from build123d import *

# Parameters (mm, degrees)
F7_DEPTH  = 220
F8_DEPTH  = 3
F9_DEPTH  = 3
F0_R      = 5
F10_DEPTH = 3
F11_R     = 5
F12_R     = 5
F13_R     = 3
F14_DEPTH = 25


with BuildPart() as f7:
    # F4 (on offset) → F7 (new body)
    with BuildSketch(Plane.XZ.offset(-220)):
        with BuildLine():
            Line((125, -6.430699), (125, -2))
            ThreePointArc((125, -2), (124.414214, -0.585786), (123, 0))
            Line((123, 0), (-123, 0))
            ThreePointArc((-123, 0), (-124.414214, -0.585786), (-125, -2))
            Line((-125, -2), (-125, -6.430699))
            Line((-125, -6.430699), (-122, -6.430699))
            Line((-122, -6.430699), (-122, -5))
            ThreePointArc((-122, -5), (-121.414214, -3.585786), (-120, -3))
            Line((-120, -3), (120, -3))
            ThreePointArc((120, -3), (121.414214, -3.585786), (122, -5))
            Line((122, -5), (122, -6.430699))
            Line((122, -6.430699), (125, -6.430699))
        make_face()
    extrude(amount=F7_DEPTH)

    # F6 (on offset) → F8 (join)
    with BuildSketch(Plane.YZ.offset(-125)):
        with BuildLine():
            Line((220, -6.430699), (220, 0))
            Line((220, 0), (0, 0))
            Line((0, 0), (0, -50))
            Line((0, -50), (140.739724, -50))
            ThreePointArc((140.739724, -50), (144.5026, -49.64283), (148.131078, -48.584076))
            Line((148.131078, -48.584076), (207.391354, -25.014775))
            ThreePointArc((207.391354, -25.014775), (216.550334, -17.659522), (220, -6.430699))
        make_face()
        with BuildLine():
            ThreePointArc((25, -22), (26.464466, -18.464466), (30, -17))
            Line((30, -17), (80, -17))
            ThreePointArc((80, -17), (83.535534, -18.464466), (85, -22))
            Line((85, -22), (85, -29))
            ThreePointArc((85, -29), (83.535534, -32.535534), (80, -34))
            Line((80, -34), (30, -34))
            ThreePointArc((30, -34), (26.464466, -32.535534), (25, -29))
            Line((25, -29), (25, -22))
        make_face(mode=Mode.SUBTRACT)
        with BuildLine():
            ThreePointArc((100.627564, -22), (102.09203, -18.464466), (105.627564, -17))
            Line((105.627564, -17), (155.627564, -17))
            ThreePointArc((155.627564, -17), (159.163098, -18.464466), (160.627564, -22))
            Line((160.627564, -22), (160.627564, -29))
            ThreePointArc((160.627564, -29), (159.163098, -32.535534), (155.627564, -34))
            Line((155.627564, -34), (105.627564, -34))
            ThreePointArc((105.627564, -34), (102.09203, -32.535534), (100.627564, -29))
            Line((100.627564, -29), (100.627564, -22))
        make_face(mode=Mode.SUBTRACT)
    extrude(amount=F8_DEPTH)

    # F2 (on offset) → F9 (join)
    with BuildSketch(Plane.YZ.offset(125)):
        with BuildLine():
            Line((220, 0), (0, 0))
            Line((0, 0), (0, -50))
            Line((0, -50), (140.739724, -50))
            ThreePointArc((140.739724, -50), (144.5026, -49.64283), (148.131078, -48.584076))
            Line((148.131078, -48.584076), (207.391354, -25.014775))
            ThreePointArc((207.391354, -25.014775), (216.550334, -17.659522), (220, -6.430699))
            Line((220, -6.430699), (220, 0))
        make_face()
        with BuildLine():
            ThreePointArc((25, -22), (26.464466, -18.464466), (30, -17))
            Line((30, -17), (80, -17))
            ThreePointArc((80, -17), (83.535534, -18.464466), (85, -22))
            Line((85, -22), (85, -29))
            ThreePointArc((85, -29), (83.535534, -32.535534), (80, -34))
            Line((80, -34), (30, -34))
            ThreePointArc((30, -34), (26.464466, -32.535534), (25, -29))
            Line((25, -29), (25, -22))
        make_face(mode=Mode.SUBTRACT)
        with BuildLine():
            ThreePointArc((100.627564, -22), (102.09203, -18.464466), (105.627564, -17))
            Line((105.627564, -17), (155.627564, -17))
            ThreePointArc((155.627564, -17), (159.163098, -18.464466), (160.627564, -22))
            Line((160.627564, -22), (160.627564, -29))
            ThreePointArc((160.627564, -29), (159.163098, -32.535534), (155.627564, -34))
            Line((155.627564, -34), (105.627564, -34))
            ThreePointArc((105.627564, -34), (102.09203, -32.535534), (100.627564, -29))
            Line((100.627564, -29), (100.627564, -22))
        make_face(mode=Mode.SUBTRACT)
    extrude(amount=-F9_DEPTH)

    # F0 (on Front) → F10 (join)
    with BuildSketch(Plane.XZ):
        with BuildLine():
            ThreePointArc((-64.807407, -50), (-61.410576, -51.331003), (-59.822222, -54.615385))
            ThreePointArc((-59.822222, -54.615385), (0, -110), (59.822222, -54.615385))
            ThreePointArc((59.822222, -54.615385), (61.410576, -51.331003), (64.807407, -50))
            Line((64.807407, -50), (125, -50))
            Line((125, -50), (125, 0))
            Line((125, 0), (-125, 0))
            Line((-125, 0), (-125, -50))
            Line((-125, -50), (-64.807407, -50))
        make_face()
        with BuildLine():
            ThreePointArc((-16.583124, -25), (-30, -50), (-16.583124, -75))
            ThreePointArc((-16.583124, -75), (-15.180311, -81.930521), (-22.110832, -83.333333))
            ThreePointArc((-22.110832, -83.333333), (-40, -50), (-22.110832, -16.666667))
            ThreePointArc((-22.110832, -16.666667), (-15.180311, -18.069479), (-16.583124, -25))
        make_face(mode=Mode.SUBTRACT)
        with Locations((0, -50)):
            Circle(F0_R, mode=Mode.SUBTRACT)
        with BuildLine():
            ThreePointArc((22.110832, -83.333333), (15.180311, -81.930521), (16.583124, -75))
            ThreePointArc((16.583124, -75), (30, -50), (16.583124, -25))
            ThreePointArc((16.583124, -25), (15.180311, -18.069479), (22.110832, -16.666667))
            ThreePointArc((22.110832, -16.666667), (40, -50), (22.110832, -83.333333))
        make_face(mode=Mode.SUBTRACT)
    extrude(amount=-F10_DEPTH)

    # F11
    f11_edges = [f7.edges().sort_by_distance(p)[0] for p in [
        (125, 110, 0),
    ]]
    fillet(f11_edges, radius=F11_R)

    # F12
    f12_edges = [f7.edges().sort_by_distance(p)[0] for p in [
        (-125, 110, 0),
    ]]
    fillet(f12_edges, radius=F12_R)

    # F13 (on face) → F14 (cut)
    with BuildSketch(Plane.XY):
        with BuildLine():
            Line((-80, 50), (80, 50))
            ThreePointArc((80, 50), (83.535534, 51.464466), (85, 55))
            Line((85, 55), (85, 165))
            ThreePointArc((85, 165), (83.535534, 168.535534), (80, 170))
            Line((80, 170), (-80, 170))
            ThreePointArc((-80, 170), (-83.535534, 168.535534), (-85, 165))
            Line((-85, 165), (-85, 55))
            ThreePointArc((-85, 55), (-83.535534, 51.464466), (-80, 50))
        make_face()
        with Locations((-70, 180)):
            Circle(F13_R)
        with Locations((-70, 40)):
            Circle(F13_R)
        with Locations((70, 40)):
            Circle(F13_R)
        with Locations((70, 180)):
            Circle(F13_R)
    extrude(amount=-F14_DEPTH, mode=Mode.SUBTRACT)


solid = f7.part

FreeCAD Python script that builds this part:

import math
import FreeCAD as App
import Part
import Sketcher
Q = App.Units.Quantity


def edges_at(feature, points):
    """Names of the edges that pass closest to the given points."""
    edges = feature.Shape.Edges
    near = lambda p: min(range(len(edges)), key=lambda i: edges[i].distToShape(Part.Vertex(*p))[0])
    return sorted({f"Edge{near(p) + 1}" for p in points})

doc = App.newDocument("Part")
body = doc.addObject("PartDesign::Body", "Body")

# Sketch on XZ plane
sketch1 = body.newObject("Sketcher::SketchObject", "Sketch")
sketch1.AttachmentSupport = (doc.getObject("XZ_Plane"), [""])
sketch1.MapMode = "FlatFace"
sketch1.AttachmentOffset = App.Placement(App.Vector(0, 0, -220), App.Rotation())
sketch1.addGeometry([
    Part.LineSegment(App.Vector(125, -6.4, 0), App.Vector(125, -2, 0)),  # 0
    Part.ArcOfCircle(Part.Circle(App.Vector(123, -2, 0), App.Vector(0, 0, 1), 2), math.radians(0), math.radians(90)),  # 1
    Part.LineSegment(App.Vector(123, 0, 0), App.Vector(-123, 0, 0)),  # 2
    Part.ArcOfCircle(Part.Circle(App.Vector(-123, -2, 0), App.Vector(0, 0, 1), 2), math.radians(90), math.radians(180)),  # 3
    Part.LineSegment(App.Vector(-125, -2, 0), App.Vector(-125, -6.4, 0)),  # 4
    Part.LineSegment(App.Vector(-125, -6.4, 0), App.Vector(-122, -6.4, 0)),  # 5
    Part.LineSegment(App.Vector(-122, -6.4, 0), App.Vector(-122, -5, 0)),  # 6
    Part.ArcOfCircle(Part.Circle(App.Vector(-120, -5, 0), App.Vector(0, 0, 1), 2), math.radians(90), math.radians(180)),  # 7
    Part.LineSegment(App.Vector(-120, -3, 0), App.Vector(120, -3, 0)),  # 8
    Part.ArcOfCircle(Part.Circle(App.Vector(120, -5, 0), App.Vector(0, 0, 1), 2), math.radians(0), math.radians(90)),  # 9
    Part.LineSegment(App.Vector(122, -5, 0), App.Vector(122, -6.4, 0)),  # 10
    Part.LineSegment(App.Vector(122, -6.4, 0), App.Vector(125, -6.4, 0)),  # 11
], False)
sketch1.addConstraint([
    Sketcher.Constraint("Tangent", 0, 2, 1, 1),
    Sketcher.Constraint("Tangent", 1, 2, 2, 1),
    Sketcher.Constraint("Tangent", 2, 2, 3, 1),
    Sketcher.Constraint("Tangent", 3, 2, 4, 1),
    Sketcher.Constraint("Coincident", 4, 2, 5, 1),
    Sketcher.Constraint("Coincident", 5, 2, 6, 1),
    Sketcher.Constraint("Tangent", 6, 2, 7, 2),
    Sketcher.Constraint("Tangent", 7, 1, 8, 1),
    Sketcher.Constraint("Tangent", 8, 2, 9, 2),
    Sketcher.Constraint("Tangent", 9, 1, 10, 1),
    Sketcher.Constraint("Coincident", 10, 2, 11, 1),
    Sketcher.Constraint("Coincident", 11, 2, 0, 1),
    Sketcher.Constraint("Vertical", 0),
    Sketcher.Constraint("Horizontal", 2),
    Sketcher.Constraint("Vertical", 4),
    Sketcher.Constraint("Horizontal", 5),
    Sketcher.Constraint("Vertical", 6),
    Sketcher.Constraint("Horizontal", 8),
    Sketcher.Constraint("Vertical", 10),
    Sketcher.Constraint("Horizontal", 11),
    Sketcher.Constraint("Equal", 1, 3),
    Sketcher.Constraint("Equal", 3, 7),
    Sketcher.Constraint("Equal", 7, 9),
    Sketcher.Constraint("Symmetric", 1, 2, 2, 2, -1, 1),
    Sketcher.Constraint("Symmetric", 5, 2, 10, 2, -2),
    Sketcher.Constraint("Radius", 1, Q("1.999999 mm")),
    Sketcher.Constraint("DistanceX", 2, 2, 2, 1, Q("246 mm")),
    Sketcher.Constraint("DistanceX", 5, 1, 5, 2, Q("3 mm")),
    Sketcher.Constraint("DistanceY", 7, 3, -1, 1, Q("4.999999 mm")),
    Sketcher.Constraint("DistanceY", 0, 1, 0, 2, Q("4.430699 mm")),
])
pad1 = body.newObject("PartDesign::Pad", "Pad")
pad1.Profile = sketch1
pad1.Length = 220

# Sketch on YZ plane
sketch2 = body.newObject("Sketcher::SketchObject", "Sketch001")
sketch2.AttachmentSupport = (doc.getObject("YZ_Plane"), [""])
sketch2.MapMode = "FlatFace"
sketch2.AttachmentOffset = App.Placement(App.Vector(0, 0, -125), App.Rotation())
sketch2.addGeometry([
    Part.LineSegment(App.Vector(220, -6.4, 0), App.Vector(220, 0, 0)),  # 0
    Part.LineSegment(App.Vector(220, 0, 0), App.Vector(0, 0, 0)),  # 1
    Part.LineSegment(App.Vector(0, 0, 0), App.Vector(0, -50, 0)),  # 2
    Part.LineSegment(App.Vector(0, -50, 0), App.Vector(140.7, -50, 0)),  # 3
    Part.ArcOfCircle(Part.Circle(App.Vector(140.7, -30, 0), App.Vector(0, 0, 1), 20), math.radians(-90), math.radians(-68)),  # 4
    Part.LineSegment(App.Vector(148.1, -48.6, 0), App.Vector(207.4, -25, 0)),  # 5
    Part.ArcOfCircle(Part.Circle(App.Vector(200, -6.4, 0), App.Vector(0, 0, 1), 20), math.radians(-68), math.radians(0)),  # 6
    Part.LineSegment(App.Vector(25, -29, 0), App.Vector(25, -22, 0)),  # 7
    Part.ArcOfCircle(Part.Circle(App.Vector(30, -22, 0), App.Vector(0, 0, 1), 5), math.radians(90), math.radians(180)),  # 8
    Part.LineSegment(App.Vector(30, -17, 0), App.Vector(80, -17, 0)),  # 9
    Part.ArcOfCircle(Part.Circle(App.Vector(80, -22, 0), App.Vector(0, 0, 1), 5), math.radians(0), math.radians(90)),  # 10
    Part.LineSegment(App.Vector(85, -22, 0), App.Vector(85, -29, 0)),  # 11
    Part.ArcOfCircle(Part.Circle(App.Vector(80, -29, 0), App.Vector(0, 0, 1), 5), math.radians(-90), math.radians(0)),  # 12
    Part.LineSegment(App.Vector(80, -34, 0), App.Vector(30, -34, 0)),  # 13
    Part.ArcOfCircle(Part.Circle(App.Vector(30, -29, 0), App.Vector(0, 0, 1), 5), math.radians(180), math.radians(270)),  # 14
    Part.LineSegment(App.Vector(100.6, -29, 0), App.Vector(100.6, -22, 0)),  # 15
    Part.ArcOfCircle(Part.Circle(App.Vector(105.6, -22, 0), App.Vector(0, 0, 1), 5), math.radians(90), math.radians(180)),  # 16
    Part.LineSegment(App.Vector(105.6, -17, 0), App.Vector(155.6, -17, 0)),  # 17
    Part.ArcOfCircle(Part.Circle(App.Vector(155.6, -22, 0), App.Vector(0, 0, 1), 5), math.radians(0), math.radians(90)),  # 18
    Part.LineSegment(App.Vector(160.6, -22, 0), App.Vector(160.6, -29, 0)),  # 19
    Part.ArcOfCircle(Part.Circle(App.Vector(155.6, -29, 0), App.Vector(0, 0, 1), 5), math.radians(-90), math.radians(0)),  # 20
    Part.LineSegment(App.Vector(155.6, -34, 0), App.Vector(105.6, -34, 0)),  # 21
    Part.ArcOfCircle(Part.Circle(App.Vector(105.6, -29, 0), App.Vector(0, 0, 1), 5), math.radians(180), math.radians(270)),  # 22
], False)
sketch2.addConstraint([
    Sketcher.Constraint("Coincident", 0, 2, 1, 1),
    Sketcher.Constraint("Coincident", 1, 2, 2, 1),
    Sketcher.Constraint("Coincident", 2, 2, 3, 1),
    Sketcher.Constraint("Tangent", 3, 2, 4, 1),
    Sketcher.Constraint("Tangent", 4, 2, 5, 1),
    Sketcher.Constraint("Tangent", 5, 2, 6, 1),
    Sketcher.Constraint("Tangent", 6, 2, 0, 1),
    Sketcher.Constraint("Tangent", 7, 2, 8, 2),
    Sketcher.Constraint("Tangent", 8, 1, 9, 1),
    Sketcher.Constraint("Tangent", 9, 2, 10, 2),
    Sketcher.Constraint("Tangent", 10, 1, 11, 1),
    Sketcher.Constraint("Tangent", 11, 2, 12, 2),
    Sketcher.Constraint("Tangent", 12, 1, 13, 1),
    Sketcher.Constraint("Tangent", 13, 2, 14, 2),
    Sketcher.Constraint("Tangent", 14, 1, 7, 1),
    Sketcher.Constraint("Tangent", 15, 2, 16, 2),
    Sketcher.Constraint("Tangent", 16, 1, 17, 1),
    Sketcher.Constraint("Tangent", 17, 2, 18, 2),
    Sketcher.Constraint("Tangent", 18, 1, 19, 1),
    Sketcher.Constraint("Tangent", 19, 2, 20, 2),
    Sketcher.Constraint("Tangent", 20, 1, 21, 1),
    Sketcher.Constraint("Tangent", 21, 2, 22, 2),
    Sketcher.Constraint("Tangent", 22, 1, 15, 1),
    Sketcher.Constraint("Vertical", 0),
    Sketcher.Constraint("Horizontal", 1),
    Sketcher.Constraint("Vertical", 2),
    Sketcher.Constraint("Horizontal", 3),
    Sketcher.Constraint("Vertical", 7),
    Sketcher.Constraint("Horizontal", 9),
    Sketcher.Constraint("Vertical", 11),
    Sketcher.Constraint("Horizontal", 13),
    Sketcher.Constraint("Vertical", 15),
    Sketcher.Constraint("Horizontal", 17),
    Sketcher.Constraint("Vertical", 19),
    Sketcher.Constraint("Horizontal", 21),
    Sketcher.Constraint("Coincident", 1, 2, -1, 1),
    Sketcher.Constraint("Equal", 8, 10),
    Sketcher.Constraint("Equal", 10, 12),
    Sketcher.Constraint("Equal", 12, 14),
    Sketcher.Constraint("Equal", 14, 16),
    Sketcher.Constraint("Equal", 16, 18),
    Sketcher.Constraint("Equal", 18, 20),
    Sketcher.Constraint("Equal", 20, 22),
    Sketcher.Constraint("Horizontal", 10, 3, 16, 3),
    Sketcher.Constraint("Horizontal", 14, 3, 20, 3),
    Sketcher.Constraint("Equal", 13, 17),
    Sketcher.Constraint("Equal", 21, 2),
    Sketcher.Constraint("Radius", 8, Q("5 mm")),
    Sketcher.Constraint("DistanceX", 1, 2, 1, 1, Q("220 mm")),
    Sketcher.Constraint("DistanceX", 9, 1, 9, 2, Q("50 mm")),
    Sketcher.Constraint("DistanceY", 7, 1, 7, 2, Q("7 mm")),
    Sketcher.Constraint("DistanceX", -1, 1, 8, 3, Q("30 mm")),
    Sketcher.Constraint("DistanceY", 8, 3, -1, 1, Q("22 mm")),
    Sketcher.Constraint("DistanceY", 0, 1, 0, 2, Q("6.430699 mm")),
    Sketcher.Constraint("Radius", 4, Q("19.999988 mm")),
    Sketcher.Constraint("Radius", 6, Q("19.999997 mm")),
    Sketcher.Constraint("DistanceX", 3, 1, 3, 2, Q("140.739724 mm")),
    Sketcher.Constraint("DistanceX", 4, 3, 18, 3, Q("14.887838 mm")),
])
pad2 = body.newObject("PartDesign::Pad", "Pad001")
pad2.Profile = sketch2
pad2.Length = 3

# Sketch on YZ plane
sketch3 = body.newObject("Sketcher::SketchObject", "Sketch002")
sketch3.AttachmentSupport = (doc.getObject("YZ_Plane"), [""])
sketch3.MapMode = "FlatFace"
sketch3.AttachmentOffset = App.Placement(App.Vector(0, 0, 125), App.Rotation())
sketch3.addGeometry([
    Part.LineSegment(App.Vector(220, 0, 0), App.Vector(0, 0, 0)),  # 0
    Part.LineSegment(App.Vector(0, 0, 0), App.Vector(0, -50, 0)),  # 1
    Part.LineSegment(App.Vector(0, -50, 0), App.Vector(140.7, -50, 0)),  # 2
    Part.ArcOfCircle(Part.Circle(App.Vector(140.7, -30, 0), App.Vector(0, 0, 1), 20), math.radians(-90), math.radians(-68)),  # 3
    Part.LineSegment(App.Vector(148.1, -48.6, 0), App.Vector(207.4, -25, 0)),  # 4
    Part.ArcOfCircle(Part.Circle(App.Vector(200, -6.4, 0), App.Vector(0, 0, 1), 20), math.radians(-68), math.radians(0)),  # 5
    Part.LineSegment(App.Vector(220, -6.4, 0), App.Vector(220, 0, 0)),  # 6
    Part.LineSegment(App.Vector(25, -29, 0), App.Vector(25, -22, 0)),  # 7
    Part.ArcOfCircle(Part.Circle(App.Vector(30, -22, 0), App.Vector(0, 0, 1), 5), math.radians(90), math.radians(180)),  # 8
    Part.LineSegment(App.Vector(30, -17, 0), App.Vector(80, -17, 0)),  # 9
    Part.ArcOfCircle(Part.Circle(App.Vector(80, -22, 0), App.Vector(0, 0, 1), 5), math.radians(0), math.radians(90)),  # 10
    Part.LineSegment(App.Vector(85, -22, 0), App.Vector(85, -29, 0)),  # 11
    Part.ArcOfCircle(Part.Circle(App.Vector(80, -29, 0), App.Vector(0, 0, 1), 5), math.radians(-90), math.radians(0)),  # 12
    Part.LineSegment(App.Vector(80, -34, 0), App.Vector(30, -34, 0)),  # 13
    Part.ArcOfCircle(Part.Circle(App.Vector(30, -29, 0), App.Vector(0, 0, 1), 5), math.radians(180), math.radians(270)),  # 14
    Part.LineSegment(App.Vector(100.6, -29, 0), App.Vector(100.6, -22, 0)),  # 15
    Part.ArcOfCircle(Part.Circle(App.Vector(105.6, -22, 0), App.Vector(0, 0, 1), 5), math.radians(90), math.radians(180)),  # 16
    Part.LineSegment(App.Vector(105.6, -17, 0), App.Vector(155.6, -17, 0)),  # 17
    Part.ArcOfCircle(Part.Circle(App.Vector(155.6, -22, 0), App.Vector(0, 0, 1), 5), math.radians(0), math.radians(90)),  # 18
    Part.LineSegment(App.Vector(160.6, -22, 0), App.Vector(160.6, -29, 0)),  # 19
    Part.ArcOfCircle(Part.Circle(App.Vector(155.6, -29, 0), App.Vector(0, 0, 1), 5), math.radians(-90), math.radians(0)),  # 20
    Part.LineSegment(App.Vector(155.6, -34, 0), App.Vector(105.6, -34, 0)),  # 21
    Part.ArcOfCircle(Part.Circle(App.Vector(105.6, -29, 0), App.Vector(0, 0, 1), 5), math.radians(180), math.radians(270)),  # 22
], False)
sketch3.addConstraint([
    Sketcher.Constraint("Coincident", 0, 2, 1, 1),
    Sketcher.Constraint("Coincident", 1, 2, 2, 1),
    Sketcher.Constraint("Tangent", 2, 2, 3, 1),
    Sketcher.Constraint("Tangent", 3, 2, 4, 1),
    Sketcher.Constraint("Tangent", 4, 2, 5, 1),
    Sketcher.Constraint("Tangent", 5, 2, 6, 1),
    Sketcher.Constraint("Coincident", 6, 2, 0, 1),
    Sketcher.Constraint("Tangent", 7, 2, 8, 2),
    Sketcher.Constraint("Tangent", 8, 1, 9, 1),
    Sketcher.Constraint("Tangent", 9, 2, 10, 2),
    Sketcher.Constraint("Tangent", 10, 1, 11, 1),
    Sketcher.Constraint("Tangent", 11, 2, 12, 2),
    Sketcher.Constraint("Tangent", 12, 1, 13, 1),
    Sketcher.Constraint("Tangent", 13, 2, 14, 2),
    Sketcher.Constraint("Tangent", 14, 1, 7, 1),
    Sketcher.Constraint("Tangent", 15, 2, 16, 2),
    Sketcher.Constraint("Tangent", 16, 1, 17, 1),
    Sketcher.Constraint("Tangent", 17, 2, 18, 2),
    Sketcher.Constraint("Tangent", 18, 1, 19, 1),
    Sketcher.Constraint("Tangent", 19, 2, 20, 2),
    Sketcher.Constraint("Tangent", 20, 1, 21, 1),
    Sketcher.Constraint("Tangent", 21, 2, 22, 2),
    Sketcher.Constraint("Tangent", 22, 1, 15, 1),
    Sketcher.Constraint("Horizontal", 0),
    Sketcher.Constraint("Vertical", 1),
    Sketcher.Constraint("Horizontal", 2),
    Sketcher.Constraint("Vertical", 6),
    Sketcher.Constraint("Vertical", 7),
    Sketcher.Constraint("Horizontal", 9),
    Sketcher.Constraint("Vertical", 11),
    Sketcher.Constraint("Horizontal", 13),
    Sketcher.Constraint("Vertical", 15),
    Sketcher.Constraint("Horizontal", 17),
    Sketcher.Constraint("Vertical", 19),
    Sketcher.Constraint("Horizontal", 21),
    Sketcher.Constraint("Coincident", 0, 2, -1, 1),
    Sketcher.Constraint("Equal", 8, 10),
    Sketcher.Constraint("Equal", 10, 12),
    Sketcher.Constraint("Equal", 12, 14),
    Sketcher.Constraint("Equal", 14, 16),
    Sketcher.Constraint("Equal", 16, 18),
    Sketcher.Constraint("Equal", 18, 20),
    Sketcher.Constraint("Equal", 20, 22),
    Sketcher.Constraint("Horizontal", 10, 3, 16, 3),
    Sketcher.Constraint("Horizontal", 14, 3, 20, 3),
    Sketcher.Constraint("Equal", 13, 17),
    Sketcher.Constraint("Equal", 21, 1),
    Sketcher.Constraint("Radius", 8, Q("5 mm")),
    Sketcher.Constraint("DistanceX", 0, 2, 0, 1, Q("220 mm")),
    Sketcher.Constraint("DistanceX", 9, 1, 9, 2, Q("50 mm")),
    Sketcher.Constraint("DistanceY", 7, 1, 7, 2, Q("7 mm")),
    Sketcher.Constraint("DistanceX", -1, 1, 8, 3, Q("30 mm")),
    Sketcher.Constraint("DistanceY", 8, 3, -1, 1, Q("22 mm")),
    Sketcher.Constraint("DistanceY", 6, 1, 6, 2, Q("6.430699 mm")),
    Sketcher.Constraint("Radius", 3, Q("19.999988 mm")),
    Sketcher.Constraint("Radius", 5, Q("19.999997 mm")),
    Sketcher.Constraint("DistanceX", 2, 1, 2, 2, Q("140.739724 mm")),
    Sketcher.Constraint("DistanceX", 3, 3, 18, 3, Q("14.887838 mm")),
])
pad3 = body.newObject("PartDesign::Pad", "Pad002")
pad3.Profile = sketch3
pad3.Length = 3
pad3.Reversed = True

# Sketch on XZ plane
sketch4 = body.newObject("Sketcher::SketchObject", "Sketch003")
sketch4.AttachmentSupport = (doc.getObject("XZ_Plane"), [""])
sketch4.MapMode = "FlatFace"
sketch4.addGeometry([
    Part.ArcOfCircle(Part.Circle(App.Vector(-64.8, -55, 0), App.Vector(0, 0, 1), 5), math.radians(4), math.radians(90)),  # 0
    Part.ArcOfCircle(Part.Circle(App.Vector(0, -50, 0), App.Vector(0, 0, 1), 60), math.radians(-176), math.radians(-4)),  # 1
    Part.ArcOfCircle(Part.Circle(App.Vector(64.8, -55, 0), App.Vector(0, 0, 1), 5), math.radians(90), math.radians(176)),  # 2
    Part.LineSegment(App.Vector(64.8, -50, 0), App.Vector(125, -50, 0)),  # 3
    Part.LineSegment(App.Vector(125, -50, 0), App.Vector(125, 0, 0)),  # 4
    Part.LineSegment(App.Vector(125, 0, 0), App.Vector(-125, 0, 0)),  # 5
    Part.LineSegment(App.Vector(-125, 0, 0), App.Vector(-125, -50, 0)),  # 6
    Part.LineSegment(App.Vector(-125, -50, 0), App.Vector(-64.8, -50, 0)),  # 7
    Part.ArcOfCircle(Part.Circle(App.Vector(-19.3, -20.8, 0), App.Vector(0, 0, 1), 5), math.radians(-56), math.radians(124)),  # 8
    Part.ArcOfCircle(Part.Circle(App.Vector(0, -50, 0), App.Vector(0, 0, 1), 30), math.radians(124), math.radians(236)),  # 9
    Part.ArcOfCircle(Part.Circle(App.Vector(-19.3, -79.2, 0), App.Vector(0, 0, 1), 5), math.radians(-124), math.radians(56)),  # 10
    Part.ArcOfCircle(Part.Circle(App.Vector(0, -50, 0), App.Vector(0, 0, 1), 40), math.radians(124), math.radians(236)),  # 11
    Part.Circle(App.Vector(0, -50, 0), App.Vector(0, 0, 1), 5),  # 12
    Part.ArcOfCircle(Part.Circle(App.Vector(0, -50, 0), App.Vector(0, 0, 1), 40), math.radians(-56), math.radians(56)),  # 13
    Part.ArcOfCircle(Part.Circle(App.Vector(19.3, -79.2, 0), App.Vector(0, 0, 1), 5), math.radians(124), math.radians(304)),  # 14
    Part.ArcOfCircle(Part.Circle(App.Vector(0, -50, 0), App.Vector(0, 0, 1), 30), math.radians(-56), math.radians(56)),  # 15
    Part.ArcOfCircle(Part.Circle(App.Vector(19.3, -20.8, 0), App.Vector(0, 0, 1), 5), math.radians(56), math.radians(236)),  # 16
], False)
sketch4.addConstraint([
    Sketcher.Constraint("Tangent", 0, 1, 1, 1),
    Sketcher.Constraint("Tangent", 1, 2, 2, 2),
    Sketcher.Constraint("Tangent", 2, 1, 3, 1),
    Sketcher.Constraint("Coincident", 3, 2, 4, 1),
    Sketcher.Constraint("Coincident", 4, 2, 5, 1),
    Sketcher.Constraint("Coincident", 5, 2, 6, 1),
    Sketcher.Constraint("Coincident", 6, 2, 7, 1),
    Sketcher.Constraint("Tangent", 7, 2, 0, 2),
    Sketcher.Constraint("Tangent", 8, 1, 9, 1),
    Sketcher.Constraint("Tangent", 9, 2, 10, 2),
    Sketcher.Constraint("Tangent", 10, 1, 11, 2),
    Sketcher.Constraint("Tangent", 11, 1, 8, 2),
    Sketcher.Constraint("Tangent", 13, 1, 14, 2),
    Sketcher.Constraint("Tangent", 14, 1, 15, 1),
    Sketcher.Constraint("Tangent", 15, 2, 16, 2),
    Sketcher.Constraint("Tangent", 16, 1, 13, 2),
    Sketcher.Constraint("Horizontal", 3),
    Sketcher.Constraint("Vertical", 4),
    Sketcher.Constraint("Horizontal", 5),
    Sketcher.Constraint("Vertical", 6),
    Sketcher.Constraint("Horizontal", 7),
    Sketcher.Constraint("Coincident", 9, 3, 1, 3),
    Sketcher.Constraint("Coincident", 11, 3, 1, 3),
    Sketcher.Constraint("Coincident", 12, 3, 1, 3),
    Sketcher.Constraint("Coincident", 13, 3, 1, 3),
    Sketcher.Constraint("Coincident", 15, 3, 1, 3),
    Sketcher.Constraint("Equal", 0, 2),
    Sketcher.Constraint("Equal", 2, 8),
    Sketcher.Constraint("Equal", 10, 12),
    Sketcher.Constraint("Equal", 11, 13),
    Sketcher.Constraint("Equal", 12, 14),
    Sketcher.Constraint("Symmetric", 4, 2, 5, 2, -1, 1),
    Sketcher.Constraint("Symmetric", 0, 3, 2, 3, -2),
    Sketcher.Constraint("Horizontal", 10, 3, 14, 3),
    Sketcher.Constraint("Horizontal", 8, 3, 16, 3),
    Sketcher.Constraint("Horizontal", 15, 3, 2, 1),
    Sketcher.Constraint("Vertical", 8, 3, 10, 3),
    Sketcher.Constraint("Diameter", 12, Q("10 mm")),
    Sketcher.Constraint("Radius", 1, Q("60 mm")),
    Sketcher.Constraint("Radius", 9, Q("30 mm")),
    Sketcher.Constraint("DistanceX", 5, 2, 5, 1, Q("250 mm")),
    Sketcher.Constraint("DistanceY", 4, 1, 4, 2, Q("50 mm")),
    Sketcher.Constraint("DistanceY", 8, 1, -1, 1, Q("25 mm")),
])
pad4 = body.newObject("PartDesign::Pad", "Pad003")
pad4.Profile = sketch4
pad4.Length = 3
pad4.Reversed = True
doc.recompute()

fillet = body.newObject("PartDesign::Fillet", "Fillet")
fillet.Base = (pad4, edges_at(pad4, [(125, 110, 0)]))
fillet.Radius = 5
doc.recompute()

fillet2 = body.newObject("PartDesign::Fillet", "Fillet001")
fillet2.Base = (fillet, edges_at(fillet, [(-125, 110, 0)]))
fillet2.Radius = 5

# Sketch on XY plane
sketch5 = body.newObject("Sketcher::SketchObject", "Sketch004")
sketch5.AttachmentSupport = (doc.getObject("XY_Plane"), [""])
sketch5.MapMode = "FlatFace"
sketch5.addGeometry([
    Part.LineSegment(App.Vector(-80, 50, 0), App.Vector(80, 50, 0)),  # 0
    Part.ArcOfCircle(Part.Circle(App.Vector(80, 55, 0), App.Vector(0, 0, 1), 5), math.radians(-90), math.radians(0)),  # 1
    Part.LineSegment(App.Vector(85, 55, 0), App.Vector(85, 165, 0)),  # 2
    Part.ArcOfCircle(Part.Circle(App.Vector(80, 165, 0), App.Vector(0, 0, 1), 5), math.radians(0), math.radians(90)),  # 3
    Part.LineSegment(App.Vector(80, 170, 0), App.Vector(-80, 170, 0)),  # 4
    Part.ArcOfCircle(Part.Circle(App.Vector(-80, 165, 0), App.Vector(0, 0, 1), 5), math.radians(90), math.radians(180)),  # 5
    Part.LineSegment(App.Vector(-85, 165, 0), App.Vector(-85, 55, 0)),  # 6
    Part.ArcOfCircle(Part.Circle(App.Vector(-80, 55, 0), App.Vector(0, 0, 1), 5), math.radians(180), math.radians(270)),  # 7
    Part.Circle(App.Vector(-70, 180, 0), App.Vector(0, 0, 1), 3),  # 8
    Part.Circle(App.Vector(-70, 40, 0), App.Vector(0, 0, 1), 3),  # 9
    Part.Circle(App.Vector(70, 40, 0), App.Vector(0, 0, 1), 3),  # 10
    Part.Circle(App.Vector(70, 180, 0), App.Vector(0, 0, 1), 3),  # 11
], False)
sketch5.addConstraint([
    Sketcher.Constraint("Tangent", 0, 2, 1, 1),
    Sketcher.Constraint("Tangent", 1, 2, 2, 1),
    Sketcher.Constraint("Tangent", 2, 2, 3, 1),
    Sketcher.Constraint("Tangent", 3, 2, 4, 1),
    Sketcher.Constraint("Tangent", 4, 2, 5, 1),
    Sketcher.Constraint("Tangent", 5, 2, 6, 1),
    Sketcher.Constraint("Tangent", 6, 2, 7, 1),
    Sketcher.Constraint("Tangent", 7, 2, 0, 1),
    Sketcher.Constraint("Horizontal", 0),
    Sketcher.Constraint("Vertical", 2),
    Sketcher.Constraint("Horizontal", 4),
    Sketcher.Constraint("Vertical", 6),
    Sketcher.Constraint("Equal", 1, 3),
    Sketcher.Constraint("Equal", 3, 5),
    Sketcher.Constraint("Equal", 5, 7),
    Sketcher.Constraint("Equal", 8, 9),
    Sketcher.Constraint("Equal", 9, 10),
    Sketcher.Constraint("Equal", 10, 11),
    Sketcher.Constraint("Symmetric", 9, 3, 10, 3, -2),
    Sketcher.Constraint("Symmetric", 8, 3, 11, 3, -2),
    Sketcher.Constraint("Vertical", 8, 3, 9, 3),
    Sketcher.Constraint("Diameter", 8, Q("6 mm")),
    Sketcher.Constraint("Radius", 1, Q("5 mm")),
    Sketcher.Constraint("DistanceX", 0, 1, 0, 2, Q("160 mm")),
    Sketcher.Constraint("DistanceY", 2, 1, 2, 2, Q("110 mm")),
    Sketcher.Constraint("DistanceX", -1, 1, 1, 3, Q("80 mm")),
    Sketcher.Constraint("DistanceY", -1, 1, 1, 3, Q("55 mm")),
    Sketcher.Constraint("DistanceX", 8, 3, -1, 1, Q("70 mm")),
    Sketcher.Constraint("DistanceY", -1, 1, 8, 3, Q("180 mm")),
    Sketcher.Constraint("DistanceY", -1, 1, 9, 3, Q("40 mm")),
])
pocket1 = body.newObject("PartDesign::Pocket", "Pocket")
pocket1.Profile = sketch5
pocket1.Length = 25

doc.recompute()
